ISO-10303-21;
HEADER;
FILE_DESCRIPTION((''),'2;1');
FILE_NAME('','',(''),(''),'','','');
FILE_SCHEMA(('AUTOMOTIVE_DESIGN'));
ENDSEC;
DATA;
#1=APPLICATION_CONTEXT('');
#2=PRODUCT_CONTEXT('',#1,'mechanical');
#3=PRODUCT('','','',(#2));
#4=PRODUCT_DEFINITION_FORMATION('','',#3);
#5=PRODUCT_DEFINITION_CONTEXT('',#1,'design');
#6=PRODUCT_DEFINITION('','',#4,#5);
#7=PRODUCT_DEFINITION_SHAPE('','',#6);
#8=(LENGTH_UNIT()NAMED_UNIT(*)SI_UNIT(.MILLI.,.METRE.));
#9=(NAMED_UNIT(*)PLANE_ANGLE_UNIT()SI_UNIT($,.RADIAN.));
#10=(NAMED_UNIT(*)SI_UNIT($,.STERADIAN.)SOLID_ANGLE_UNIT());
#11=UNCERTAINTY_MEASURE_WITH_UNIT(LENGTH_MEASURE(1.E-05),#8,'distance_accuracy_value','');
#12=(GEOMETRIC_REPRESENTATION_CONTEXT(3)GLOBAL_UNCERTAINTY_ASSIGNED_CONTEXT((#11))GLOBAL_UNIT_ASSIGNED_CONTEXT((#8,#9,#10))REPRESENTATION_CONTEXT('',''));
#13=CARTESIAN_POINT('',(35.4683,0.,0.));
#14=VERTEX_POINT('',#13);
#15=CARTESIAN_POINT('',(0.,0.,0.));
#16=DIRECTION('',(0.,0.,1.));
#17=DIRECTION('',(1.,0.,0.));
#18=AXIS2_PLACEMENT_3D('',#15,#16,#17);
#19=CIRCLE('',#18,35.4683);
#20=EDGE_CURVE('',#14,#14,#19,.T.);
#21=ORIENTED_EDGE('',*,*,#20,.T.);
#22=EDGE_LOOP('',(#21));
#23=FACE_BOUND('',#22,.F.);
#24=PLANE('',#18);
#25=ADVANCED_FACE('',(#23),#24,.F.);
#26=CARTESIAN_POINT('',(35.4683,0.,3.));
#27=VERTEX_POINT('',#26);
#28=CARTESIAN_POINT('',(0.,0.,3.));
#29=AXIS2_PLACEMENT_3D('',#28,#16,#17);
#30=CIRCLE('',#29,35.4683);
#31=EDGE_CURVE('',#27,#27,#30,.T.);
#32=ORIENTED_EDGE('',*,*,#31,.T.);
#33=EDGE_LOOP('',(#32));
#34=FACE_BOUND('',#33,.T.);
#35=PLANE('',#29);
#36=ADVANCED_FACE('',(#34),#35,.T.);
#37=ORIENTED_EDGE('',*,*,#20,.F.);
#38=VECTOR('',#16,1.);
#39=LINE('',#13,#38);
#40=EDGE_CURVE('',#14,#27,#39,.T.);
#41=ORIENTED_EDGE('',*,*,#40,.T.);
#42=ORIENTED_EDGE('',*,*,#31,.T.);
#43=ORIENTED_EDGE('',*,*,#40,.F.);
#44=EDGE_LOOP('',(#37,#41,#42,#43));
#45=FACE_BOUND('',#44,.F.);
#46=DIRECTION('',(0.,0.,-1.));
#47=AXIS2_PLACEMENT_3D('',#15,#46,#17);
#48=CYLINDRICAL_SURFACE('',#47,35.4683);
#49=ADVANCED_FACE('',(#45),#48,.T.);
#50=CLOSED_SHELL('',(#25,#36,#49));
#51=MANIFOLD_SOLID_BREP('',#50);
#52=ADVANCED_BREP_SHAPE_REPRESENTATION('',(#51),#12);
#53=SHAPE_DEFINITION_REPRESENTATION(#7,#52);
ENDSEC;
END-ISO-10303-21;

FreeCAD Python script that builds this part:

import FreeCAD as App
import Part
import Sketcher

V = App.Vector

doc = App.newDocument("Part")
body = doc.addObject("PartDesign::Body", "Body")

# Sketch on XY plane
sketch1 = doc.addObject("Sketcher::SketchObject", "Sketch")
body.addObject(sketch1)
sketch1.AttachmentSupport = (doc.XY_Plane, [""])
sketch1.MapMode = "FlatFace"
sketch1.addGeometry(Part.Circle(V(0, 0, 0), V(0, 0, 1), 35.4683), False)
sketch1.addConstraint([
    Sketcher.Constraint("Coincident", 0, 3, -1, 1),
    Sketcher.Constraint("Diameter", 0, 70.9366),
])
pad1 = doc.addObject("PartDesign::Pad", "Pad")
body.addObject(pad1)
pad1.Profile = sketch1
pad1.Length = 3

doc.recompute()
